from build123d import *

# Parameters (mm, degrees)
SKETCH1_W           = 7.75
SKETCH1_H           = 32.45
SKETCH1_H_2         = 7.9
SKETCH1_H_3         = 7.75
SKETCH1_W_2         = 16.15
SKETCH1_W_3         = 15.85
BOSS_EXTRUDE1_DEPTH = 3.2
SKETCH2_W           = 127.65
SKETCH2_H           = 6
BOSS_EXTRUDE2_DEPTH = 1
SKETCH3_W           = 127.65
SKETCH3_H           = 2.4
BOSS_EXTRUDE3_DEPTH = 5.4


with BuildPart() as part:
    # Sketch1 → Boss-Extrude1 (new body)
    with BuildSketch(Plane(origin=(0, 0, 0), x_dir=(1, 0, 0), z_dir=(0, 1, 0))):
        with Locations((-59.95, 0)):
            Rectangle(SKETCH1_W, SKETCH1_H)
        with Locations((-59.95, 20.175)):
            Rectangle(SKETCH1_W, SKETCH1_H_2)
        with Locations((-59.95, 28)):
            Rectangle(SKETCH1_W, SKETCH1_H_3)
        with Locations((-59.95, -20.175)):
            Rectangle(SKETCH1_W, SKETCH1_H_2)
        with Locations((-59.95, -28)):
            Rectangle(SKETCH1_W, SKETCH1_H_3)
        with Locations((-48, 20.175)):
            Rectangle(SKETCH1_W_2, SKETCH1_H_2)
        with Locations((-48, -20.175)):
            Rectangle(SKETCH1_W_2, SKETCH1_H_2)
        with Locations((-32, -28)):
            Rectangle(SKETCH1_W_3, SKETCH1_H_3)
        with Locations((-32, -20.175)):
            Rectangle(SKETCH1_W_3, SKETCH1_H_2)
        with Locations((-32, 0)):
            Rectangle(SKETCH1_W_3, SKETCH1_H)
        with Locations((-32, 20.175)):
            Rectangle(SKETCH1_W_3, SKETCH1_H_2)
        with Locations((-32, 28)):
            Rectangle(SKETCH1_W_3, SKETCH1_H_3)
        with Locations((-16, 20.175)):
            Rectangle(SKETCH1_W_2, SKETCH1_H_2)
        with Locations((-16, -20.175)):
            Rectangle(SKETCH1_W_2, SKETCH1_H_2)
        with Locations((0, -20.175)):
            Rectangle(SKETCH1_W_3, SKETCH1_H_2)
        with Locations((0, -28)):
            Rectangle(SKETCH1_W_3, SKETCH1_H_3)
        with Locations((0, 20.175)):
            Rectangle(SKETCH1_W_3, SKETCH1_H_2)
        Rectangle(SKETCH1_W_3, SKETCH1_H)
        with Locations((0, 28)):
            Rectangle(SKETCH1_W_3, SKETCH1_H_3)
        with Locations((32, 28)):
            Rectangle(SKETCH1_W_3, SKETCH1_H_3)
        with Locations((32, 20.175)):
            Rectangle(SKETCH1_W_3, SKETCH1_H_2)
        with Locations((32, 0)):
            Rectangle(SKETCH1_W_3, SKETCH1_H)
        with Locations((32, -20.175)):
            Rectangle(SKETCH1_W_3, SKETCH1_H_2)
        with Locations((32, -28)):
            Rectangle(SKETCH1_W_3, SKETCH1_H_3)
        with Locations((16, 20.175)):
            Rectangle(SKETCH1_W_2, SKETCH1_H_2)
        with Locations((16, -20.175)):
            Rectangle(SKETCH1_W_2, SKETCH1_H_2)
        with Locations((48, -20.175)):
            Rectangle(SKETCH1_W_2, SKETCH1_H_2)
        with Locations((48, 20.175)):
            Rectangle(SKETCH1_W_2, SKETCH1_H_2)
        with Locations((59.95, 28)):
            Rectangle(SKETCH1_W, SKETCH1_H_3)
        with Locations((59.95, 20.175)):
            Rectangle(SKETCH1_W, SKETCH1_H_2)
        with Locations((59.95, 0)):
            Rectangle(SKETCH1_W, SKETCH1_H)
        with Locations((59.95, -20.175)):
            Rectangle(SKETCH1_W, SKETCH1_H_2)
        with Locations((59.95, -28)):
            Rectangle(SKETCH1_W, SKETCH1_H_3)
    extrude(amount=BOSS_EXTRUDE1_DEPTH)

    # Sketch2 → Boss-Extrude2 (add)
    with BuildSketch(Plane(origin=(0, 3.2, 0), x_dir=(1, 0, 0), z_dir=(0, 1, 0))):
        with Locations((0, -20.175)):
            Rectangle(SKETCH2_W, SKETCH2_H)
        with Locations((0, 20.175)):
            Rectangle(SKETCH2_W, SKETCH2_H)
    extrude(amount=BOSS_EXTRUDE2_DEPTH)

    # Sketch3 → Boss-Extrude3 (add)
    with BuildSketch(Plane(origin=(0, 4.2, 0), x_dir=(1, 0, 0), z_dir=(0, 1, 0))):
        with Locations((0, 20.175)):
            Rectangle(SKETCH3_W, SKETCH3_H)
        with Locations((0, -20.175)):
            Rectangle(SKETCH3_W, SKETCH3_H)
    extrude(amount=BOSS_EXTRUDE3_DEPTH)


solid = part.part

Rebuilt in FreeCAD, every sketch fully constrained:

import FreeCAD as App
import Part
import Sketcher
Q = App.Units.Quantity


def add_polygon(sketch, points):
    """Adds a closed chain of lines whose ends are joined by coincident constraints."""
    first, n = sketch.GeometryCount, len(points)
    for a, b in zip(points, points[1:] + points[:1]):
        sketch.addGeometry(Part.LineSegment(App.Vector(*a, 0), App.Vector(*b, 0)), False)
    for i in range(n):
        sketch.addConstraint(Sketcher.Constraint("Coincident", first + i, 2, first + (i + 1) % n, 1))

doc = App.newDocument("Part")
body = doc.addObject("PartDesign::Body", "Body")

# Sketch on XZ plane
sketch1 = body.newObject("Sketcher::SketchObject", "Sketch")
sketch1.AttachmentSupport = (doc.getObject("XZ_Plane"), [""])
sketch1.MapMode = "FlatFace"
add_polygon(sketch1, [(39.925, 24.125), (56.075, 24.125), (56.075, 31.875), (63.825, 31.875), (63.825, -31.875), (56.075, -31.875), (56.075, -24.125), (39.925, -24.125), (39.925, -31.875), (24.075, -31.875), (24.075, -24.125), (7.925, -24.125), (7.925, -31.875), (-7.925, -31.875), (-7.925, -24.125), (-24.075, -24.125), (-24.075, -31.875), (-39.925, -31.875), (-39.925, -24.125), (-56.075, -24.125), (-56.075, -31.875), (-63.825, -31.875), (-63.825, 31.875), (-56.075, 31.875), (-56.075, 24.125), (-39.925, 24.125), (-39.925, 31.875), (-24.075, 31.875), (-24.075, 24.125), (-7.925, 24.125), (-7.925, 31.875), (7.925, 31.875), (7.925, 24.125), (24.075, 24.125), (24.075, 31.875), (39.925, 31.875)])  # lines 0-35
add_polygon(sketch1, [(-39.925, -16.225), (-39.925, 16.225), (-56.075, 16.225), (-56.075, -16.225)])  # lines 36-39
add_polygon(sketch1, [(-7.925, 16.225), (-24.075, 16.225), (-24.075, -16.225), (-7.925, -16.225)])  # lines 40-43
add_polygon(sketch1, [(7.925, 16.225), (7.925, -16.225), (24.075, -16.225), (24.075, 16.225)])  # lines 44-47
add_polygon(sketch1, [(56.075, 16.225), (39.925, 16.225), (39.925, -16.225), (56.075, -16.225)])  # lines 48-51
sketch1.addConstraint([
    Sketcher.Constraint("Horizontal", 0),
    Sketcher.Constraint("Vertical", 1),
    Sketcher.Constraint("Horizontal", 2),
    Sketcher.Constraint("Vertical", 3),
    Sketcher.Constraint("Horizontal", 4),
    Sketcher.Constraint("Vertical", 5),
    Sketcher.Constraint("Horizontal", 6),
    Sketcher.Constraint("Vertical", 7),
    Sketcher.Constraint("Horizontal", 8),
    Sketcher.Constraint("Vertical", 9),
    Sketcher.Constraint("Horizontal", 10),
    Sketcher.Constraint("Vertical", 11),
    Sketcher.Constraint("Horizontal", 12),
    Sketcher.Constraint("Vertical", 13),
    Sketcher.Constraint("Horizontal", 14),
    Sketcher.Constraint("Vertical", 15),
    Sketcher.Constraint("Horizontal", 16),
    Sketcher.Constraint("Vertical", 17),
    Sketcher.Constraint("Horizontal", 18),
    Sketcher.Constraint("Vertical", 19),
    Sketcher.Constraint("Horizontal", 20),
    Sketcher.Constraint("Vertical", 21),
    Sketcher.Constraint("Horizontal", 22),
    Sketcher.Constraint("Vertical", 23),
    Sketcher.Constraint("Horizontal", 24),
    Sketcher.Constraint("Vertical", 25),
    Sketcher.Constraint("Horizontal", 26),
    Sketcher.Constraint("Vertical", 27),
    Sketcher.Constraint("Horizontal", 28),
    Sketcher.Constraint("Vertical", 29),
    Sketcher.Constraint("Horizontal", 30),
    Sketcher.Constraint("Vertical", 31),
    Sketcher.Constraint("Horizontal", 32),
    Sketcher.Constraint("Vertical", 33),
    Sketcher.Constraint("Horizontal", 34),
    Sketcher.Constraint("Vertical", 35),
    Sketcher.Constraint("Vertical", 36),
    Sketcher.Constraint("Horizontal", 37),
    Sketcher.Constraint("Vertical", 38),
    Sketcher.Constraint("Horizontal", 39),
    Sketcher.Constraint("Horizontal", 40),
    Sketcher.Constraint("Vertical", 41),
    Sketcher.Constraint("Horizontal", 42),
    Sketcher.Constraint("Vertical", 43),
    Sketcher.Constraint("Vertical", 44),
    Sketcher.Constraint("Horizontal", 45),
    Sketcher.Constraint("Vertical", 46),
    Sketcher.Constraint("Horizontal", 47),
    Sketcher.Constraint("Horizontal", 48),
    Sketcher.Constraint("Vertical", 49),
    Sketcher.Constraint("Horizontal", 50),
    Sketcher.Constraint("Vertical", 51),
    Sketcher.Constraint("Symmetric", 0, 2, 18, 2, -1, 1),
    Sketcher.Constraint("Symmetric", 2, 2, 20, 2, -1, 1),
    Sketcher.Constraint("Symmetric", 4, 2, 22, 2, -1, 1),
    Sketcher.Constraint("Symmetric", 6, 2, 24, 2, -1, 1),
    Sketcher.Constraint("Symmetric", 8, 2, 26, 2, -1, 1),
    Sketcher.Constraint("Symmetric", 10, 2, 28, 2, -1, 1),
    Sketcher.Constraint("Symmetric", 12, 2, 30, 2, -1, 1),
    Sketcher.Constraint("Symmetric", 14, 2, 32, 2, -1, 1),
    Sketcher.Constraint("Symmetric", 16, 2, 34, 2, -1, 1),
    Sketcher.Constraint("Symmetric", 43, 2, 44, 2, -1, 1),
    Sketcher.Constraint("Symmetric", 41, 2, 46, 2, -1, 1),
    Sketcher.Constraint("Symmetric", 39, 2, 48, 2, -1, 1),
    Sketcher.Constraint("Symmetric", 37, 2, 50, 2, -1, 1),
    Sketcher.Constraint("Symmetric", 10, 2, 13, 2, -2),
    Sketcher.Constraint("Symmetric", 8, 2, 15, 2, -2),
    Sketcher.Constraint("Symmetric", 6, 2, 17, 2, -2),
    Sketcher.Constraint("Symmetric", 4, 2, 19, 2, -2),
    Sketcher.Constraint("Horizontal", 4, 2, 7, 2),
    Sketcher.Constraint("Horizontal", 6, 2, 9, 2),
    Sketcher.Constraint("Horizontal", 8, 2, 11, 2),
    Sketcher.Constraint("Horizontal", 37, 2, 40, 2),
    Sketcher.Constraint("Horizontal", 39, 2, 41, 2),
    Sketcher.Constraint("Horizontal", 42, 2, 44, 2),
    Sketcher.Constraint("Vertical", 25, 2, 36, 2),
    Sketcher.Constraint("Vertical", 23, 2, 37, 2),
    Sketcher.Constraint("Vertical", 27, 2, 40, 2),
    Sketcher.Constraint("Vertical", 29, 2, 42, 2),
    Sketcher.Constraint("Equal", 6, 10),
    Sketcher.Constraint("Equal", 8, 12),
    Sketcher.Constraint("Equal", 22, 1),
    Sketcher.Constraint("DistanceY", 3, 2, 0, 2, Q("56 mm")),
    Sketcher.Constraint("DistanceX", 8, 2, 4, 2, Q("32 mm")),
    Sketcher.Constraint("DistanceX", 0, 1, 0, 2, Q("16.15 mm")),
    Sketcher.Constraint("DistanceX", 2, 1, 2, 2, Q("7.75 mm")),
    Sketcher.Constraint("DistanceY", 36, 1, 36, 2, Q("32.45 mm")),
])
pad1 = body.newObject("PartDesign::Pad", "Pad")
pad1.Profile = sketch1
pad1.Length = 3.2
pad1.Reversed = True

# Sketch on XZ plane
sketch2 = body.newObject("Sketcher::SketchObject", "Sketch001")
sketch2.AttachmentSupport = (doc.getObject("XZ_Plane"), [""])
sketch2.MapMode = "FlatFace"
sketch2.AttachmentOffset = App.Placement(App.Vector(0, 0, -3.2), App.Rotation())
add_polygon(sketch2, [(-63.825, 17.175), (-63.825, 23.175), (63.825, 23.175), (63.825, 17.175)])  # lines 0-3
add_polygon(sketch2, [(-63.825, -23.175), (-63.825, -17.175), (63.825, -17.175), (63.825, -23.175)])  # lines 4-7
sketch2.addConstraint([
    Sketcher.Constraint("Vertical", 0),
    Sketcher.Constraint("Horizontal", 1),
    Sketcher.Constraint("Vertical", 2),
    Sketcher.Constraint("Horizontal", 3),
    Sketcher.Constraint("Vertical", 4),
    Sketcher.Constraint("Horizontal", 5),
    Sketcher.Constraint("Vertical", 6),
    Sketcher.Constraint("Horizontal", 7),
    Sketcher.Constraint("Symmetric", 2, 2, 4, 2, -1, 1),
    Sketcher.Constraint("Symmetric", 0, 2, 6, 2, -1, 1),
    Sketcher.Constraint("Vertical", 3, 2, 4, 2),
    Sketcher.Constraint("DistanceY", 0, 1, 0, 2, Q("6 mm")),
    Sketcher.Constraint("DistanceX", 1, 1, 1, 2, Q("127.65 mm")),
    Sketcher.Constraint("DistanceY", 4, 2, 3, 2, Q("34.35 mm")),
])
pad2 = body.newObject("PartDesign::Pad", "Pad001")
pad2.Profile = sketch2
pad2.Length = 1
pad2.Reversed = True

# Sketch on XZ plane
sketch3 = body.newObject("Sketcher::SketchObject", "Sketch002")
sketch3.AttachmentSupport = (doc.getObject("XZ_Plane"), [""])
sketch3.MapMode = "FlatFace"
sketch3.AttachmentOffset = App.Placement(App.Vector(0, 0, -4.2), App.Rotation())
add_polygon(sketch3, [(-63.825, -21.375), (-63.825, -18.975), (63.825, -18.975), (63.825, -21.375)])  # lines 0-3
add_polygon(sketch3, [(-63.825, 18.975), (-63.825, 21.375), (63.825, 21.375), (63.825, 18.975)])  # lines 4-7
sketch3.addConstraint([
    Sketcher.Constraint("Vertical", 0),
    Sketcher.Constraint("Horizontal", 1),
    Sketcher.Constraint("Vertical", 2),
    Sketcher.Constraint("Horizontal", 3),
    Sketcher.Constraint("Vertical", 4),
    Sketcher.Constraint("Horizontal", 5),
    Sketcher.Constraint("Vertical", 6),
    Sketcher.Constraint("Horizontal", 7),
    Sketcher.Constraint("Symmetric", 2, 2, 4, 2, -1, 1),
    Sketcher.Constraint("Symmetric", 0, 2, 6, 2, -1, 1),
    Sketcher.Constraint("Vertical", 3, 2, 4, 2),
    Sketcher.Constraint("DistanceY", 0, 1, 0, 2, Q("2.4 mm")),
    Sketcher.Constraint("DistanceX", 1, 1, 1, 2, Q("127.65 mm")),
    Sketcher.Constraint("DistanceY", 0, 2, 4, 2, Q("40.35 mm")),
])
pad3 = body.newObject("PartDesign::Pad", "Pad002")
pad3.Profile = sketch3
pad3.Length = 5.4
pad3.Reversed = True

doc.recompute()
